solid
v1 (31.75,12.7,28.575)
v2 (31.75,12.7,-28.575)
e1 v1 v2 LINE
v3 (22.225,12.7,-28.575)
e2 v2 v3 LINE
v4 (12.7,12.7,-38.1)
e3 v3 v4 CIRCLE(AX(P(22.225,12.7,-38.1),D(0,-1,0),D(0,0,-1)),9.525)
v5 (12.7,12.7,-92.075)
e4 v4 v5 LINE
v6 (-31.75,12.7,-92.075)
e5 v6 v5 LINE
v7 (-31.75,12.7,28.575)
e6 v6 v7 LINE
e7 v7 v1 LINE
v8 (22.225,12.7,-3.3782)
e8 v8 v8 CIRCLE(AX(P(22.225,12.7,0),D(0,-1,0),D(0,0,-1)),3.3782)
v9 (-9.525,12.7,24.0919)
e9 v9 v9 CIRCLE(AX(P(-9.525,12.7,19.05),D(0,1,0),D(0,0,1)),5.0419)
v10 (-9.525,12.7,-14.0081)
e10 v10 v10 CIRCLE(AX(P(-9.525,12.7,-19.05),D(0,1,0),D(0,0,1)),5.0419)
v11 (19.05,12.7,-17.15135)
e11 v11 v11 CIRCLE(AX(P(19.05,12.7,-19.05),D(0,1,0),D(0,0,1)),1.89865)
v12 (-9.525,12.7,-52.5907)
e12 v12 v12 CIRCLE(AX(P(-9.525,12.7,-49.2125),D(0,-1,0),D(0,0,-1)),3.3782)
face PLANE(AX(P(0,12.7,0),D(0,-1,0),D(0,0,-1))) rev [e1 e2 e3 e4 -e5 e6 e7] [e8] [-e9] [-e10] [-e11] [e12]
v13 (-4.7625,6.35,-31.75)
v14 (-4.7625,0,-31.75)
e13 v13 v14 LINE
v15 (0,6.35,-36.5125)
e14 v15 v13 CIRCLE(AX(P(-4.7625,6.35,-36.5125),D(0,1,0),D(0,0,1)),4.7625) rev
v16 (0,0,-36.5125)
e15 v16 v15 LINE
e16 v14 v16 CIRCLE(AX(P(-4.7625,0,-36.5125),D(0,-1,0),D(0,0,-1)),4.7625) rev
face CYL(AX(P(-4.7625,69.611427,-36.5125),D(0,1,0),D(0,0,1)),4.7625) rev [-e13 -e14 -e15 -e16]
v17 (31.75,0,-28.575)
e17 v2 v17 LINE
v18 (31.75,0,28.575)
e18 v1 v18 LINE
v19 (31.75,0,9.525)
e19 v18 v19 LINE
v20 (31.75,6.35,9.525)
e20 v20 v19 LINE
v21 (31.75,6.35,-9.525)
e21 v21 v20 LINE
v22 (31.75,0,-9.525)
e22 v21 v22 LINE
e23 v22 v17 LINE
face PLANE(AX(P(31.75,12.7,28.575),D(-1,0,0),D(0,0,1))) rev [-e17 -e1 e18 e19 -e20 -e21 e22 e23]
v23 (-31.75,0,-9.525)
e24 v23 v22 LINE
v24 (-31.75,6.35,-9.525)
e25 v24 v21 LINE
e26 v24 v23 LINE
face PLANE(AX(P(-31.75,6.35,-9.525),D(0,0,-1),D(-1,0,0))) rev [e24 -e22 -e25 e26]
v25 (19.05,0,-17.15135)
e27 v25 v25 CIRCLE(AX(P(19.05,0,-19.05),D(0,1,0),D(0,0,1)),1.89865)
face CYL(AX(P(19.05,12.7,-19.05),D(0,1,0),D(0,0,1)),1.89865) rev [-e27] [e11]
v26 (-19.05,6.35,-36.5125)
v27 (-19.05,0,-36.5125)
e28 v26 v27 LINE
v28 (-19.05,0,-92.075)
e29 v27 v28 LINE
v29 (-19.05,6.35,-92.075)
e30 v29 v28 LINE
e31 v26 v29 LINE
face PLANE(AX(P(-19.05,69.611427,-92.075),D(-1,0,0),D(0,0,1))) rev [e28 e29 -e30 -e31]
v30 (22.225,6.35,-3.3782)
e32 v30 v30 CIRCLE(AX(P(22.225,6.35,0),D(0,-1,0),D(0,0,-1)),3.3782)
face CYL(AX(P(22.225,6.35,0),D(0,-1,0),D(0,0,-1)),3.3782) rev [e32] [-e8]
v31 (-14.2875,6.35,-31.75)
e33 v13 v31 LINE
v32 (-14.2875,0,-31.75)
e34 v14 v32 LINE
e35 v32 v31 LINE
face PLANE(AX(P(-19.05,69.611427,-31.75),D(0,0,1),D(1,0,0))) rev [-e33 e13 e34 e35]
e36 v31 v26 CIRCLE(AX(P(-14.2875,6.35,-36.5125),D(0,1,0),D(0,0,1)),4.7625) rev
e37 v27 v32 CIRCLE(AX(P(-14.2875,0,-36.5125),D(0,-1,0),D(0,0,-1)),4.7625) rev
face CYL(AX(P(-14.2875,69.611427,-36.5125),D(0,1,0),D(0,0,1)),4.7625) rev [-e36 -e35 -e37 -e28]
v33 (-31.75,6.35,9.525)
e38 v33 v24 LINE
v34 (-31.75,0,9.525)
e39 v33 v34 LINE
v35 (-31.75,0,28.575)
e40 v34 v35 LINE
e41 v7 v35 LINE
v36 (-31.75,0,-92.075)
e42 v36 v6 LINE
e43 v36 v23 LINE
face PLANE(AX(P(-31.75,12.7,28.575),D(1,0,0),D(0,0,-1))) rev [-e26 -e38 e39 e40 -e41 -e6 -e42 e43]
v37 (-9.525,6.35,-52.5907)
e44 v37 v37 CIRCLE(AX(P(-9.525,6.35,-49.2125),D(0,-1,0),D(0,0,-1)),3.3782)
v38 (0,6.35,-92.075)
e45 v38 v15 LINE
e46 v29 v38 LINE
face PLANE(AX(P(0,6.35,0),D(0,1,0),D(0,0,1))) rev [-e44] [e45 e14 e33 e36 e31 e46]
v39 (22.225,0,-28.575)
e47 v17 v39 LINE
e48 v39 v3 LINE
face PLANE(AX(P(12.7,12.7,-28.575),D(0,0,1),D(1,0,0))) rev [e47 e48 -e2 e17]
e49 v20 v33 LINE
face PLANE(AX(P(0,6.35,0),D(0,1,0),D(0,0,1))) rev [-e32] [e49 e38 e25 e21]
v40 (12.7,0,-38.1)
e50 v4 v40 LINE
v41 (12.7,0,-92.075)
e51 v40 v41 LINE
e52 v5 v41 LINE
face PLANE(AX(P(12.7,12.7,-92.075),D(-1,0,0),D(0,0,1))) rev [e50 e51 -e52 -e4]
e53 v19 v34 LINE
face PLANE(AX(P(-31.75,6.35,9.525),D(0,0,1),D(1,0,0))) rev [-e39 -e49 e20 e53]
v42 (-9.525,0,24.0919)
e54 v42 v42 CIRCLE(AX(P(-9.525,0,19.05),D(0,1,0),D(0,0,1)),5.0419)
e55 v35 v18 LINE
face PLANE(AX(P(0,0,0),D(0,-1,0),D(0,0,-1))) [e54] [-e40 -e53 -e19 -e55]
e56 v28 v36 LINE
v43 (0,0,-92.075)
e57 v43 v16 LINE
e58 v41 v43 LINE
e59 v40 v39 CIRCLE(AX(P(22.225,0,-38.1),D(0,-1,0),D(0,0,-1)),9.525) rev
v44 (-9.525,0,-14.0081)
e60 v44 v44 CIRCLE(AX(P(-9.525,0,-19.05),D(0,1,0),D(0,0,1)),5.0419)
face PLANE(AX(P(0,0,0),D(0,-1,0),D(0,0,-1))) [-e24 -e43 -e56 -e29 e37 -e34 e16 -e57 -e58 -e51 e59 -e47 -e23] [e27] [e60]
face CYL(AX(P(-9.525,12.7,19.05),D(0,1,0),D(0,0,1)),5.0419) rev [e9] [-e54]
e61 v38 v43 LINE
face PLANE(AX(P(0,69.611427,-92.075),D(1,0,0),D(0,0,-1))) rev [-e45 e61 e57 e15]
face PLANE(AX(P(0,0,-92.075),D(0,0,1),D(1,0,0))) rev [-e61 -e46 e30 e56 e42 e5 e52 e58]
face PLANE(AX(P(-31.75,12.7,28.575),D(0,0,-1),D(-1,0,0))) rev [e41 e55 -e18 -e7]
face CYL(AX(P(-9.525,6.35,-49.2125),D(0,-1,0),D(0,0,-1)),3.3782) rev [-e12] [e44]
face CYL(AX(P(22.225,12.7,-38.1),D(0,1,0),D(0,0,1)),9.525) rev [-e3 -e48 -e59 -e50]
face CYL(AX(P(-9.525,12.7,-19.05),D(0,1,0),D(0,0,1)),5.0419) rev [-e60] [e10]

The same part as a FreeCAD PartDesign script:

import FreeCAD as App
import Part
import Sketcher

V = App.Vector
Q = App.Units.Quantity


def edges_at(feature, points):
    """Names of the edges that pass closest to the given points."""
    edges = feature.Shape.Edges
    near = lambda p: min(range(len(edges)), key=lambda i: edges[i].distToShape(Part.Vertex(*p))[0])
    return sorted({f"Edge{near(p) + 1}" for p in points})


def add_polygon(sketch, points):
    """Adds a closed chain of lines whose ends are joined by coincident constraints."""
    first, n = sketch.GeometryCount, len(points)
    for a, b in zip(points, points[1:] + points[:1]):
        sketch.addGeometry(Part.LineSegment(App.Vector(*a, 0), App.Vector(*b, 0)), False)
    for i in range(n):
        sketch.addConstraint(Sketcher.Constraint("Coincident", first + i, 2, first + (i + 1) % n, 1))

doc = App.newDocument("Part")
params = doc.addObject("Spreadsheet::Sheet", "Params")
for row, (alias, value) in enumerate([
    ("sketch1_width", "2.5 in"),
    ("sketch1_height", "2.25 in"),
    ("pad1_length", "0.5 in"),
    ("sketch2_width", "2.5 in"),
    ("sketch2_height", "0.75 in"),
    ("pocket1_length", "0.25 in"),
    ("sketch3_diameter", "0.397 in"),
    ("hole_diameter", "0.397 in"),
    ("sketch4_width", "2.5 in"),
    ("sketch4_height", "0.5 in"),
    ("pad2_length", "2.5 in"),
    ("sketch5_width", "0.75 in"),
    ("sketch5_height", "2.375 in"),
    ("pocket2_length", "0.25 in"),
    ("fillet_radius", "0.1875 in"),
    ("sketch6_diameter", "0.266 in"),
    ("hole2_diameter", "0.266 in"),
    ("sketch7_height", "2.5 in"),
    ("sketch7_width", "0.75 in"),
    ("fillet2_radius", "0.375 in"),
    ("hole3_diameter", "0.1495 in"),
], start=1):
    params.set(f"A{row}", alias)
    params.set(f"B{row}", "=" + value)
    params.setAlias(f"B{row}", alias)

body = doc.addObject("PartDesign::Body", "Body")

# Sketch on XZ plane
sketch1 = body.newObject("Sketcher::SketchObject", "Sketch")
sketch1.AttachmentSupport = (doc.getObject("XZ_Plane"), [""])
sketch1.MapMode = "FlatFace"
add_polygon(sketch1, [(-32, -29), (-32, 29), (32, 29), (32, -29)])  # lines 0-3
sketch1.addConstraint(Sketcher.Constraint("Vertical", 0))
sketch1.addConstraint(Sketcher.Constraint("Horizontal", 1))
sketch1.addConstraint(Sketcher.Constraint("Vertical", 2))
sketch1.addConstraint(Sketcher.Constraint("Horizontal", 3))
sketch1.addConstraint(Sketcher.Constraint("Symmetric", 0, 2, 2, 2, -1, 1))
sketch1.addConstraint(Sketcher.Constraint("DistanceX", 1, 1, 1, 2, Q("2.5 in")))
sketch1.addConstraint(Sketcher.Constraint("DistanceY", 0, 1, 0, 2, Q("2.25 in")))
sketch1.setExpression("Constraints[9]", "Params.sketch1_width")
sketch1.setExpression("Constraints[10]", "Params.sketch1_height")
pad1 = body.newObject("PartDesign::Pad", "Pad")
pad1.Profile = sketch1
pad1.setExpression("Length", "Params.pad1_length")
pad1.Reversed = True

# Sketch on XZ plane
sketch2 = body.newObject("Sketcher::SketchObject", "Sketch001")
sketch2.AttachmentSupport = (doc.getObject("XZ_Plane"), [""])
sketch2.MapMode = "FlatFace"
add_polygon(sketch2, [(-32, 10), (-32, -10), (32, -10), (32, 10)])  # lines 0-3
sketch2.addConstraint(Sketcher.Constraint("Vertical", 0))
sketch2.addConstraint(Sketcher.Constraint("Horizontal", 1))
sketch2.addConstraint(Sketcher.Constraint("Vertical", 2))
sketch2.addConstraint(Sketcher.Constraint("Horizontal", 3))
sketch2.addConstraint(Sketcher.Constraint("Symmetric", 0, 2, 2, 2, -1, 1))
sketch2.addConstraint(Sketcher.Constraint("DistanceX", 1, 1, 1, 2, Q("2.5 in")))
sketch2.addConstraint(Sketcher.Constraint("DistanceY", 0, 2, 0, 1, Q("0.75 in")))
sketch2.setExpression("Constraints[9]", "Params.sketch2_width")
sketch2.setExpression("Constraints[10]", "Params.sketch2_height")
pocket1 = body.newObject("PartDesign::Pocket", "Pocket")
pocket1.Profile = sketch2
pocket1.setExpression("Length", "Params.pocket1_length")

# Sketch on XZ plane
sketch3 = body.newObject("Sketcher::SketchObject", "Sketch002")
sketch3.AttachmentSupport = (doc.getObject("XZ_Plane"), [""])
sketch3.MapMode = "FlatFace"
sketch3.AttachmentOffset = App.Placement(V(0, 0, -0.5 * 25.4), App.Rotation())
sketch3.addGeometry(Part.Circle(V(-10, -19, 0), V(0, 0, 1), 5), False)
sketch3.addGeometry(Part.Circle(V(-10, 19, 0), V(0, 0, 1), 5), False)
sketch3.addConstraint(Sketcher.Constraint("Equal", 0, 1))
sketch3.addConstraint(Sketcher.Constraint("Symmetric", 0, 3, 1, 3, -1))
sketch3.addConstraint(Sketcher.Constraint("Diameter", 0, Q("0.397 in")))
sketch3.addConstraint(Sketcher.Constraint("DistanceY", 0, 3, 1, 3, Q("1.5 in")))
sketch3.addConstraint(Sketcher.Constraint("DistanceX", 0, 3, -1, 1, Q("0.375 in")))
sketch3.setExpression("Constraints[2]", "Params.sketch3_diameter")
doc.recompute()
hole = body.newObject("PartDesign::Hole", "Hole")
hole.Profile = sketch3
hole.ThreadType = "None"
hole.setExpression("Diameter", "Params.hole_diameter")
hole.DepthType = "ThroughAll"
hole.Reversed = True

# Sketch on XY plane
sketch4 = body.newObject("Sketcher::SketchObject", "Sketch003")
sketch4.AttachmentSupport = (doc.getObject("XY_Plane"), [""])
sketch4.MapMode = "FlatFace"
sketch4.AttachmentOffset = App.Placement(V(0, 0, -1.125 * 25.4), App.Rotation())
add_polygon(sketch4, [(32, 13), (32, 0), (-32, 0), (-32, 13)])  # lines 0-3
sketch4.addConstraint(Sketcher.Constraint("Vertical", 0))
sketch4.addConstraint(Sketcher.Constraint("Horizontal", 1))
sketch4.addConstraint(Sketcher.Constraint("Vertical", 2))
sketch4.addConstraint(Sketcher.Constraint("Horizontal", 3))
sketch4.addConstraint(Sketcher.Constraint("Symmetric", 0, 2, 1, 2, -1, 1))
sketch4.addConstraint(Sketcher.Constraint("DistanceX", 1, 2, 1, 1, Q("2.5 in")))
sketch4.addConstraint(Sketcher.Constraint("DistanceY", 0, 2, 0, 1, Q("0.5 in")))
sketch4.setExpression("Constraints[9]", "Params.sketch4_width")
sketch4.setExpression("Constraints[10]", "Params.sketch4_height")
pad2 = body.newObject("PartDesign::Pad", "Pad001")
pad2.Profile = sketch4
pad2.setExpression("Length", "Params.pad2_length")
pad2.Reversed = True

# Sketch on XZ plane
sketch5 = body.newObject("Sketcher::SketchObject", "Sketch004")
sketch5.AttachmentSupport = (doc.getObject("XZ_Plane"), [""])
sketch5.MapMode = "FlatFace"
add_polygon(sketch5, [(-19, -32), (-19, -92), (0, -92), (0, -32)])  # lines 0-3
sketch5.addConstraint(Sketcher.Constraint("Vertical", 0))
sketch5.addConstraint(Sketcher.Constraint("Horizontal", 1))
sketch5.addConstraint(Sketcher.Constraint("Vertical", 2))
sketch5.addConstraint(Sketcher.Constraint("Horizontal", 3))
sketch5.addConstraint(Sketcher.Constraint("PointOnObject", 1, 2, -2))
sketch5.addConstraint(Sketcher.Constraint("DistanceX", 1, 1, 1, 2, Q("0.75 in")))
sketch5.addConstraint(Sketcher.Constraint("DistanceY", 0, 2, 0, 1, Q("2.375 in")))
sketch5.addConstraint(Sketcher.Constraint("DistanceY", 2, 2, -1, 1, Q("1.25 in")))
sketch5.setExpression("Constraints[9]", "Params.sketch5_width")
sketch5.setExpression("Constraints[10]", "Params.sketch5_height")
pocket2 = body.newObject("PartDesign::Pocket", "Pocket001")
pocket2.Profile = sketch5
pocket2.setExpression("Length", "Params.pocket2_length")
doc.recompute()

fillet = body.newObject("PartDesign::Fillet", "Fillet")
fillet.Base = (pocket2, edges_at(pocket2, [(0, 3.175, -31.75), (-19.05, 3.175, -31.75)]))
fillet.setExpression("Radius", "Params.fillet_radius")

# Sketch on XZ plane
sketch6 = body.newObject("Sketcher::SketchObject", "Sketch005")
sketch6.AttachmentSupport = (doc.getObject("XZ_Plane"), [""])
sketch6.MapMode = "FlatFace"
sketch6.AttachmentOffset = App.Placement(V(0, 0, -0.25 * 25.4), App.Rotation())
sketch6.addGeometry(Part.Circle(V(22.2, 0, 0), V(0, 0, 1), 3.4), False)
sketch6.addGeometry(Part.Circle(V(-9.5, -49.2, 0), V(0, 0, 1), 3.4), False)
sketch6.addConstraint(Sketcher.Constraint("Equal", 0, 1))
sketch6.addConstraint(Sketcher.Constraint("PointOnObject", 0, 3, -1))
sketch6.addConstraint(Sketcher.Constraint("Diameter", 0, Q("0.266 in")))
sketch6.addConstraint(Sketcher.Constraint("DistanceX", 1, 3, 0, 3, Q("1.25 in")))
sketch6.addConstraint(Sketcher.Constraint("DistanceX", -1, 1, 0, 3, Q("0.875 in")))
sketch6.addConstraint(Sketcher.Constraint("DistanceY", 1, 3, -1, 1, Q("1.9375 in")))
sketch6.setExpression("Constraints[2]", "Params.sketch6_diameter")
doc.recompute()
hole2 = body.newObject("PartDesign::Hole", "Hole001")
hole2.Profile = sketch6
hole2.ThreadType = "None"
hole2.setExpression("Diameter", "Params.hole2_diameter")
hole2.DepthType = "ThroughAll"

# Sketch on XZ plane
sketch7 = body.newObject("Sketcher::SketchObject", "Sketch006")
sketch7.AttachmentSupport = (doc.getObject("XZ_Plane"), [""])
sketch7.MapMode = "FlatFace"
add_polygon(sketch7, [(13, -29), (13, -92), (32, -92), (32, -29)])  # lines 0-3
sketch7.addConstraint(Sketcher.Constraint("Vertical", 0))
sketch7.addConstraint(Sketcher.Constraint("Horizontal", 1))
sketch7.addConstraint(Sketcher.Constraint("Vertical", 2))
sketch7.addConstraint(Sketcher.Constraint("Horizontal", 3))
sketch7.addConstraint(Sketcher.Constraint("DistanceY", 0, 2, 0, 1, Q("2.5 in")))
sketch7.addConstraint(Sketcher.Constraint("DistanceX", 1, 1, 1, 2, Q("0.75 in")))
sketch7.addConstraint(Sketcher.Constraint("DistanceX", -1, 1, 0, 2, Q("0.5 in")))
sketch7.addConstraint(Sketcher.Constraint("DistanceY", 0, 2, -1, 1, Q("3.625 in")))
sketch7.setExpression("Constraints[8]", "Params.sketch7_height")
sketch7.setExpression("Constraints[9]", "Params.sketch7_width")
pocket3 = body.newObject("PartDesign::Pocket", "Pocket002")
pocket3.Profile = sketch7
pocket3.Type = "ThroughAll"
doc.recompute()

fillet2 = body.newObject("PartDesign::Fillet", "Fillet001")
fillet2.Base = (pocket3, edges_at(pocket3, [(12.7, 6.35, -28.575)]))
fillet2.setExpression("Radius", "Params.fillet2_radius")

# Sketch on XZ plane
sketch8 = body.newObject("Sketcher::SketchObject", "Sketch007")
sketch8.AttachmentSupport = (doc.getObject("XZ_Plane"), [""])
sketch8.MapMode = "FlatFace"
sketch8.AttachmentOffset = App.Placement(V(0, 0, -0.5 * 25.4), App.Rotation())
sketch8.addGeometry(Part.Circle(V(19.1, -19.1, 0), V(0, 0, 1), 1.9), False)
sketch8.addConstraint(Sketcher.Constraint("Diameter", 0, Q("0.1495 in")))
sketch8.addConstraint(Sketcher.Constraint("DistanceX", -1, 1, 0, 3, Q("0.75 in")))
sketch8.addConstraint(Sketcher.Constraint("DistanceY", 0, 3, -1, 1, Q("0.75 in")))
doc.recompute()
hole3 = body.newObject("PartDesign::Hole", "Hole002")
hole3.Profile = sketch8
hole3.ThreadType = "None"
hole3.setExpression("Diameter", "Params.hole3_diameter")
hole3.DepthType = "ThroughAll"
hole3.Reversed = True

doc.recompute()
